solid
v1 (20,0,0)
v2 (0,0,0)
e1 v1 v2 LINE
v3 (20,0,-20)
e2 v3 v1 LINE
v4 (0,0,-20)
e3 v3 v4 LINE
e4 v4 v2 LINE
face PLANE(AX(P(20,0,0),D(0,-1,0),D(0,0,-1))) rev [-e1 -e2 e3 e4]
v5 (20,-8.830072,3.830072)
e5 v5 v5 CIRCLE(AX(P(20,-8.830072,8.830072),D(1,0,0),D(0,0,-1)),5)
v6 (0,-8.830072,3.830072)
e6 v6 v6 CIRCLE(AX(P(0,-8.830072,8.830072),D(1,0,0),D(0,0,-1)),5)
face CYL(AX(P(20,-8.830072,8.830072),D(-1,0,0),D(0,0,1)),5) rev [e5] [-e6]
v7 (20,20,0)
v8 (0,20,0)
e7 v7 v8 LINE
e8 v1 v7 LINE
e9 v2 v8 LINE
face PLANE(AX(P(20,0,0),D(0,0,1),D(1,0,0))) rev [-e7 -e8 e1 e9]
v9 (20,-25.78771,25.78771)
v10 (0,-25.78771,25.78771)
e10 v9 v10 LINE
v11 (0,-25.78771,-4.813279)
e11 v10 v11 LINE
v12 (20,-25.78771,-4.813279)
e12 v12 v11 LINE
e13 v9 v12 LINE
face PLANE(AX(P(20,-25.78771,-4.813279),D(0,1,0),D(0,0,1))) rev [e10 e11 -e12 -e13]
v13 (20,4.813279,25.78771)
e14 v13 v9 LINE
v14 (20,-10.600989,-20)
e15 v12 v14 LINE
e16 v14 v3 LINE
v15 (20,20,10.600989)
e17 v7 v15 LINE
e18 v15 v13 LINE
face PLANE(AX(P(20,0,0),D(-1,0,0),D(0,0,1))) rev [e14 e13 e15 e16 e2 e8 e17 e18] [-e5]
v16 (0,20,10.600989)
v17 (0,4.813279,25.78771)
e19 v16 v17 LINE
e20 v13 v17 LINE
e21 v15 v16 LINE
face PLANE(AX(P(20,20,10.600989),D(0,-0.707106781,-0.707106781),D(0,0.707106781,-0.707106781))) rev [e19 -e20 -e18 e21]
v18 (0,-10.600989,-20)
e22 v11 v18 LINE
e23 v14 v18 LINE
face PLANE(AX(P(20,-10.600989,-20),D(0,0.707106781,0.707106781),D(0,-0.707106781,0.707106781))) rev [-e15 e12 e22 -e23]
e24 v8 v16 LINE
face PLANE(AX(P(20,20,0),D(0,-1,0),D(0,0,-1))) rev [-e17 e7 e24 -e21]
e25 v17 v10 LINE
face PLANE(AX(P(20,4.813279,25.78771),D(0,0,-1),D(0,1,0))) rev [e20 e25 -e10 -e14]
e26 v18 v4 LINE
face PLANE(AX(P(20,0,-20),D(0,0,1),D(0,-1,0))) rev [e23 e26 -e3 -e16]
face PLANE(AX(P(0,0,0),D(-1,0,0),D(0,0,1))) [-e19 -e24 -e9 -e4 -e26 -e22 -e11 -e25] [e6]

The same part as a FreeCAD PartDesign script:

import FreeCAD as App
import Part
import Sketcher

V = App.Vector
Q = App.Units.Quantity


def add_polygon(sketch, points):
    """Adds a closed chain of lines whose ends are joined by coincident constraints."""
    first, n = sketch.GeometryCount, len(points)
    for a, b in zip(points, points[1:] + points[:1]):
        sketch.addGeometry(Part.LineSegment(App.Vector(*a, 0), App.Vector(*b, 0)), False)
    for i in range(n):
        sketch.addConstraint(Sketcher.Constraint("Coincident", first + i, 2, first + (i + 1) % n, 1))

doc = App.newDocument("Part")
body = doc.addObject("PartDesign::Body", "Body")

sketch1 = body.newObject("Sketcher::SketchObject", "Sketch")
sketch1.AttachmentSupport = (doc.getObject("YZ_Plane"), [""])
sketch1.MapMode = "FlatFace"
add_polygon(sketch1, [(0, 0), (20, 0), (20, 10.600989), (4.813279, 25.78771), (-25.78771, 25.78771), (-25.78771, -4.813279), (-10.600989, -20), (0, -20)])
sketch1.addGeometry(Part.Circle(V(-8.830072, 8.830072, 0), V(0, 0, 1), 5), False)
sketch1.addConstraint([
    Sketcher.Constraint("Horizontal", 0),
    Sketcher.Constraint("Vertical", 1),
    Sketcher.Constraint("Horizontal", 3),
    Sketcher.Constraint("Vertical", 4),
    Sketcher.Constraint("Horizontal", 6),
    Sketcher.Constraint("Vertical", 7),
    Sketcher.Constraint("Coincident", 7, 2, -1, 1),
    Sketcher.Constraint("Parallel", 2, 5),
    Sketcher.Constraint("Equal", 6, 1),
    Sketcher.Constraint("Equal", 3, 4),
    Sketcher.Constraint("Equal", 0, 7),
    Sketcher.Constraint("Diameter", 8, Q("10 mm")),
    Sketcher.Constraint("DistanceX", 0, 1, 0, 2, Q("20 mm")),
    Sketcher.Constraint("Angle", 2, Q("135 deg")),
    Sketcher.Constraint("DistanceX", 3, 2, 3, 1, Q("30.600989 mm")),
    Sketcher.Constraint("DistanceX", -1, 1, 2, 2, Q("4.813279 mm")),
    Sketcher.Constraint("DistanceX", 8, 3, 2, 2, Q("13.643351 mm")),
    Sketcher.Constraint("DistanceY", 4, 2, 8, 3, Q("13.643351 mm")),
])
pad1 = body.newObject("PartDesign::Pad", "Pad")
pad1.Profile = sketch1
pad1.Length = 20

doc.recompute()
